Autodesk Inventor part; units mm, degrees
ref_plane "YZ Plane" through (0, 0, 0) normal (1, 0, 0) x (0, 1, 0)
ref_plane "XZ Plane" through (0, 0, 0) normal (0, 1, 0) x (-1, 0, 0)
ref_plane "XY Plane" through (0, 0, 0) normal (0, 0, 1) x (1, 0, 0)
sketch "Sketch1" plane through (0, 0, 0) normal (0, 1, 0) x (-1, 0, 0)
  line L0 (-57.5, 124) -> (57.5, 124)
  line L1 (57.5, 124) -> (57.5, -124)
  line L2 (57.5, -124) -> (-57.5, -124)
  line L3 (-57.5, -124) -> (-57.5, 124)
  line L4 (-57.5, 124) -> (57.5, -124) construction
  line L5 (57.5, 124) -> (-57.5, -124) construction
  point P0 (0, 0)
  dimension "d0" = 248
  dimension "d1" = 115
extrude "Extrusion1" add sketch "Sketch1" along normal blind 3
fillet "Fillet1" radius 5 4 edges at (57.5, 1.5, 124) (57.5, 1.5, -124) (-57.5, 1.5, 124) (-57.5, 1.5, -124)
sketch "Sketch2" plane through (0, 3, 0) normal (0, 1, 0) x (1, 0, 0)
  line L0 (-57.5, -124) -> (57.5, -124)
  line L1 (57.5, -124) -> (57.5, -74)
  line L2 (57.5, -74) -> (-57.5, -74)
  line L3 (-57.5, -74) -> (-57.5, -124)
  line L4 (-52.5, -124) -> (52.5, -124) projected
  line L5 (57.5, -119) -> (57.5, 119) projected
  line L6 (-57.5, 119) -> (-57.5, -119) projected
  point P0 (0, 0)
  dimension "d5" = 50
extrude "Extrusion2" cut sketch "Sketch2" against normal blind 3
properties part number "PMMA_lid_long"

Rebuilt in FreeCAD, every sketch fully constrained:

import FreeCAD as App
import Part
import Sketcher
Q = App.Units.Quantity


def edges_at(feature, points):
    """Names of the edges that pass closest to the given points."""
    edges = feature.Shape.Edges
    near = lambda p: min(range(len(edges)), key=lambda i: edges[i].distToShape(Part.Vertex(*p))[0])
    return sorted({f"Edge{near(p) + 1}" for p in points})


def add_polygon(sketch, points):
    """Adds a closed chain of lines whose ends are joined by coincident constraints."""
    first, n = sketch.GeometryCount, len(points)
    for a, b in zip(points, points[1:] + points[:1]):
        sketch.addGeometry(Part.LineSegment(App.Vector(*a, 0), App.Vector(*b, 0)), False)
    for i in range(n):
        sketch.addConstraint(Sketcher.Constraint("Coincident", first + i, 2, first + (i + 1) % n, 1))

doc = App.newDocument("Part")
body = doc.addObject("PartDesign::Body", "Body")

sketch1 = doc.addObject("Sketcher::SketchObject", "Sketch")
body.addObject(sketch1)
sketch1.AttachmentSupport = (doc.XZ_Plane, [""])
sketch1.MapMode = "FlatFace"
add_polygon(sketch1, [(-58, 124), (58, 124), (58, -124), (-58, -124)])
sketch1.addConstraint(Sketcher.Constraint("Horizontal", 0))
sketch1.addConstraint(Sketcher.Constraint("Vertical", 1))
sketch1.addConstraint(Sketcher.Constraint("Horizontal", 2))
sketch1.addConstraint(Sketcher.Constraint("Vertical", 3))
sketch1.addConstraint(Sketcher.Constraint("Symmetric", 0, 2, 2, 2, -1, 1))
sketch1.addConstraint(Sketcher.Constraint("DistanceX", 0, 1, 0, 2, Q("115 mm")))
sketch1.addConstraint(Sketcher.Constraint("DistanceY", 1, 2, 1, 1, Q("248 mm")))
pad1 = doc.addObject("PartDesign::Pad", "Pad")
body.addObject(pad1)
pad1.Profile = sketch1
pad1.Length = 3
pad1.Reversed = True
doc.recompute()

fillet = doc.addObject("PartDesign::Fillet", "Fillet")
body.addObject(fillet)
fillet.Base = (pad1, edges_at(pad1, [
    (57.5, 1.5, 124),
    (57.5, 1.5, -124),
    (-57.5, 1.5, 124),
    (-57.5, 1.5, -124),
]))
fillet.Radius = 5

sketch2 = doc.addObject("Sketcher::SketchObject", "Sketch001")
body.addObject(sketch2)
sketch2.AttachmentSupport = (doc.XZ_Plane, [""])
sketch2.MapMode = "FlatFace"
sketch2.AttachmentOffset = App.Placement(App.Vector(0, 0, -3), App.Rotation())
add_polygon(sketch2, [(-58, 74), (-58, 124), (58, 124), (58, 74)])
sketch2.addConstraint(Sketcher.Constraint("Vertical", 0))
sketch2.addConstraint(Sketcher.Constraint("Horizontal", 1))
sketch2.addConstraint(Sketcher.Constraint("Vertical", 2))
sketch2.addConstraint(Sketcher.Constraint("Horizontal", 3))
sketch2.addConstraint(Sketcher.Constraint("DistanceY", 0, 1, 0, 2, Q("50 mm")))
sketch2.addConstraint(Sketcher.Constraint("DistanceX", 1, 1, 1, 2, Q("115 mm")))
sketch2.addConstraint(Sketcher.Constraint("DistanceY", -1, 1, 0, 2, Q("124 mm")))
sketch2.addConstraint(Sketcher.Constraint("DistanceX", 0, 2, -1, 1, Q("57.5 mm")))
pocket1 = doc.addObject("PartDesign::Pocket", "Pocket")
body.addObject(pocket1)
pocket1.Profile = sketch2
pocket1.Length = 3
pocket1.Reversed = True

doc.recompute()
